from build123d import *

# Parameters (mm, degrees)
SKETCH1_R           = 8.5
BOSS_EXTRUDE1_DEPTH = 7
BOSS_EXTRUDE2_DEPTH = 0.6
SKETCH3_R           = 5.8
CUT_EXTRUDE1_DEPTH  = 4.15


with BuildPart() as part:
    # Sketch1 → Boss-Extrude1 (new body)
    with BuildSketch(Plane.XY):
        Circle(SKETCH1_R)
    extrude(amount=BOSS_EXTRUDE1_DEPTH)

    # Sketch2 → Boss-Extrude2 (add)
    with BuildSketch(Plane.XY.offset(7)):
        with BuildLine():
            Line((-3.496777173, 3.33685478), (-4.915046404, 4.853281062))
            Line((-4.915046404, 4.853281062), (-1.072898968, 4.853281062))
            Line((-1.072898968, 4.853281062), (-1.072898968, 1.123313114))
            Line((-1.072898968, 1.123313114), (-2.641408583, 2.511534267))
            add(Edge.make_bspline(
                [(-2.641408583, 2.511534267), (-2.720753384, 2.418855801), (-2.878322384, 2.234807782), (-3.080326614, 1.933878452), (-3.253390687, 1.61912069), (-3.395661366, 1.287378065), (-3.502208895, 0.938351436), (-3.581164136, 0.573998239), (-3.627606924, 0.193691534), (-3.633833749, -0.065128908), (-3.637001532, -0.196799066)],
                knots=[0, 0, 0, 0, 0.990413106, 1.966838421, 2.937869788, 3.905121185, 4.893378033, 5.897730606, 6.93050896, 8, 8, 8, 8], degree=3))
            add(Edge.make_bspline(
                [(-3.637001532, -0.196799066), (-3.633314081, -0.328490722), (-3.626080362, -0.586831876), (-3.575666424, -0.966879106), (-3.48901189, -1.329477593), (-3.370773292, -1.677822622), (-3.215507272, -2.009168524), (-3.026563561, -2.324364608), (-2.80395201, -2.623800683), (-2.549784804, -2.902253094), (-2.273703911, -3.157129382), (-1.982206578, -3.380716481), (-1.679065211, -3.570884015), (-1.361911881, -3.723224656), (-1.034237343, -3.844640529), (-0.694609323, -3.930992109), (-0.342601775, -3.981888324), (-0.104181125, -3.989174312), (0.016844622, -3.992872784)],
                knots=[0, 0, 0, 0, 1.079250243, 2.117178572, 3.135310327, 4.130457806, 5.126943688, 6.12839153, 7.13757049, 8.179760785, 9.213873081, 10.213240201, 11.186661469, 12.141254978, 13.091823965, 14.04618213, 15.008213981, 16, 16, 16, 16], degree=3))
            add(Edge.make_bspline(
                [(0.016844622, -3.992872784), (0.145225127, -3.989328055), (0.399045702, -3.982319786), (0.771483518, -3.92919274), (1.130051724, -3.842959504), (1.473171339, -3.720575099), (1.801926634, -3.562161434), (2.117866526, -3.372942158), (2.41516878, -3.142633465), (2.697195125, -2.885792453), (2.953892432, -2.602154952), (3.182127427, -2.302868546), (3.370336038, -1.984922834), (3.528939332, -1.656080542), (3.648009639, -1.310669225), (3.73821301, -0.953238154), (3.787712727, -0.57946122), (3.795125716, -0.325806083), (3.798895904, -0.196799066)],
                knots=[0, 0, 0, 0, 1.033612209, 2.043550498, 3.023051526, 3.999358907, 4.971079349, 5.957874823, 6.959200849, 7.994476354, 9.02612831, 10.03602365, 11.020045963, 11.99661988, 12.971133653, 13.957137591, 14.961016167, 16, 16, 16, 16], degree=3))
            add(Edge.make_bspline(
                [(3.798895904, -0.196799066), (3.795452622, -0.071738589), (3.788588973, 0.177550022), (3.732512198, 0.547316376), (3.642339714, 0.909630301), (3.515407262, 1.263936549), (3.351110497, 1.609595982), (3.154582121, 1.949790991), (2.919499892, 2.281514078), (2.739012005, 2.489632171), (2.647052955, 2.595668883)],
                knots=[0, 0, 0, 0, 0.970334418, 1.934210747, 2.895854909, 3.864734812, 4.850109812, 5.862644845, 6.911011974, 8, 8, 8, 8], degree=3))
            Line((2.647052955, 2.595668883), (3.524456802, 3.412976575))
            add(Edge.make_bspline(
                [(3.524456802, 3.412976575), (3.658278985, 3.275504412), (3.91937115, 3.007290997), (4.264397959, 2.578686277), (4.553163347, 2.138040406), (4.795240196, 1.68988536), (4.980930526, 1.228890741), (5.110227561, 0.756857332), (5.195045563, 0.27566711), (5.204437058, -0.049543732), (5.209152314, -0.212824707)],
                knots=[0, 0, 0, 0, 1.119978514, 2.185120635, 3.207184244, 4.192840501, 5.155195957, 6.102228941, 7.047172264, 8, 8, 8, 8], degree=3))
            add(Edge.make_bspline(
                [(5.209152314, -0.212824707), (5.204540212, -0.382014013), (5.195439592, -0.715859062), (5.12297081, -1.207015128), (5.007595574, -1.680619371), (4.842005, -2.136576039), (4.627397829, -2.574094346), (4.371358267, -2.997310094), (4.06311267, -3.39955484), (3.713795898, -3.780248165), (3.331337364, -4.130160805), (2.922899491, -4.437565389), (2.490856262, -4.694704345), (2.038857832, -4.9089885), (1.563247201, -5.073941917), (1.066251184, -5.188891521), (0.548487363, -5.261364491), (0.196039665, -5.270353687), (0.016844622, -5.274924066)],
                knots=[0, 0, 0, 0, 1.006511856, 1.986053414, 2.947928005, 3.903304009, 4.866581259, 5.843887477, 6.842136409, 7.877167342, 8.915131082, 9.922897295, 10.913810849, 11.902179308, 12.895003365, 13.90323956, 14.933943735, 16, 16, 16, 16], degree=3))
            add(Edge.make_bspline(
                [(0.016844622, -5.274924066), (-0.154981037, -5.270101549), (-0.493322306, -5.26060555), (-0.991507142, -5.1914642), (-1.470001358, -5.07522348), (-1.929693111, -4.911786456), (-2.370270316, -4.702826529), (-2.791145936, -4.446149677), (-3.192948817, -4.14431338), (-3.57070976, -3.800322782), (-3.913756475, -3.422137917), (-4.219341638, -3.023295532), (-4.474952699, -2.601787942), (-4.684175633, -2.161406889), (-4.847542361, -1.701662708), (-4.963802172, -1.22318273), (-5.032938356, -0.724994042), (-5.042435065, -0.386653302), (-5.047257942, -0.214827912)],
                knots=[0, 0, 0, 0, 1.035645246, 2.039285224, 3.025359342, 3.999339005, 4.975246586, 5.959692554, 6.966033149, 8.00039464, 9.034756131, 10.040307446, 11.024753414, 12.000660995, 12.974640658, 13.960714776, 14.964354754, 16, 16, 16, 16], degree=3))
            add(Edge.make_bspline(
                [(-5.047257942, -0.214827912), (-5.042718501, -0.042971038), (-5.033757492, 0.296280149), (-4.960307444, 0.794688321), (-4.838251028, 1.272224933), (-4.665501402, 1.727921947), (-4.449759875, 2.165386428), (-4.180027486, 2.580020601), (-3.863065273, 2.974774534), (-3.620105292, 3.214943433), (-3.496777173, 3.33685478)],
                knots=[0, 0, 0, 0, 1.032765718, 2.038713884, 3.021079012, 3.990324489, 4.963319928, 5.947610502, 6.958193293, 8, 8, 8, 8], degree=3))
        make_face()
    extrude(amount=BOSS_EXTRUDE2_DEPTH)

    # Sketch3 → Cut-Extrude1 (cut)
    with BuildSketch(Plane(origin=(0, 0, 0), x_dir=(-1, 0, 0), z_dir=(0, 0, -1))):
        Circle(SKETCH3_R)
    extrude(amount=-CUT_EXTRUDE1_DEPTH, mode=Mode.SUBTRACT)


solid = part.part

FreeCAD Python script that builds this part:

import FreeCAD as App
import Part
import Sketcher
from FreeCAD import Vector

doc = App.newDocument("Part")
body = doc.addObject("PartDesign::Body", "Body")

# Sketch on XY plane
sketch1 = doc.addObject("Sketcher::SketchObject", "Sketch")
body.addObject(sketch1)
sketch1.AttachmentSupport = (doc.XY_Plane, [""])
sketch1.MapMode = "FlatFace"
sketch1.addGeometry(Part.Circle(Vector(0, 0, 0), Vector(0, 0, 1), 8), False)
sketch1.addConstraint(Sketcher.Constraint("Coincident", 0, 3, -1, 1))
sketch1.addConstraint(Sketcher.Constraint("Diameter", 0, 17.0))
pad1 = doc.addObject("PartDesign::Pad", "Pad")
body.addObject(pad1)
pad1.Profile = sketch1
pad1.Length = 7

# Sketch on XY plane
sketch2 = doc.addObject("Sketcher::SketchObject", "Sketch001")
body.addObject(sketch2)
sketch2.AttachmentSupport = (doc.XY_Plane, [""])
sketch2.MapMode = "FlatFace"
sketch2.AttachmentOffset = App.Placement(Vector(0, 0, 7), App.Rotation())
sketch2.addGeometry(Part.LineSegment(Vector(-4.915046, 4.853281, 0), Vector(-3.496777, 3.336855, 0)), False)
sketch2.addGeometry(Part.BSplineCurve([Vector(-5.047258, -0.214828, 0), Vector(-5.042719, -0.042971, 0), Vector(-5.033757, 0.29628, 0), Vector(-4.960307, 0.794688, 0), Vector(-4.838251, 1.272225, 0), Vector(-4.665501, 1.727922, 0), Vector(-4.44976, 2.165386, 0), Vector(-4.180027, 2.580021, 0), Vector(-3.863065, 2.974775, 0), Vector(-3.620105, 3.214943, 0), Vector(-3.496777, 3.336855, 0)], [4, 1, 1, 1, 1, 1, 1, 1, 4], [0, 1.032765718, 2.038713884, 3.021079012, 3.990324489, 4.963319928, 5.947610502, 6.958193293, 8], False, 3, [1, 1, 1, 1, 1, 1, 1, 1, 1, 1, 1], False), False)
sketch2.addGeometry(Part.BSplineCurve([Vector(0.016845, -5.274924, 0), Vector(-0.154981, -5.270102, 0), Vector(-0.493322, -5.260606, 0), Vector(-0.991507, -5.191464, 0), Vector(-1.470001, -5.075223, 0), Vector(-1.929693, -4.911786, 0), Vector(-2.37027, -4.702827, 0), Vector(-2.791146, -4.44615, 0), Vector(-3.192949, -4.144313, 0), Vector(-3.57071, -3.800323, 0), Vector(-3.913756, -3.422138, 0), Vector(-4.219342, -3.023296, 0), Vector(-4.474953, -2.601788, 0), Vector(-4.684176, -2.161407, 0), Vector(-4.847542, -1.701663, 0), Vector(-4.963802, -1.223183, 0), Vector(-5.032938, -0.724994, 0), Vector(-5.042435, -0.386653, 0), Vector(-5.047258, -0.214828, 0)], [4, 1, 1, 1, 1, 1, 1, 1, 1, 1, 1, 1, 1, 1, 1, 1, 4], [0, 1.035645246, 2.039285224, 3.025359342, 3.999339005, 4.975246586, 5.959692554, 6.966033149, 8.00039464, 9.034756131, 10.040307446, 11.024753414, 12.000660995, 12.974640658, 13.960714776, 14.964354754, 16], False, 3, [1, 1, 1, 1, 1, 1, 1, 1, 1, 1, 1, 1, 1, 1, 1, 1, 1, 1, 1], False), False)
sketch2.addGeometry(Part.BSplineCurve([Vector(5.209152, -0.212825, 0), Vector(5.20454, -0.382014, 0), Vector(5.19544, -0.715859, 0), Vector(5.122971, -1.207015, 0), Vector(5.007596, -1.680619, 0), Vector(4.842005, -2.136576, 0), Vector(4.627398, -2.574094, 0), Vector(4.371358, -2.99731, 0), Vector(4.063113, -3.399555, 0), Vector(3.713796, -3.780248, 0), Vector(3.331337, -4.130161, 0), Vector(2.922899, -4.437565, 0), Vector(2.490856, -4.694704, 0), Vector(2.038858, -4.908989, 0), Vector(1.563247, -5.073942, 0), Vector(1.066251, -5.188892, 0), Vector(0.548487, -5.261364, 0), Vector(0.19604, -5.270354, 0), Vector(0.016845, -5.274924, 0)], [4, 1, 1, 1, 1, 1, 1, 1, 1, 1, 1, 1, 1, 1, 1, 1, 4], [0, 1.006511856, 1.986053414, 2.947928005, 3.903304009, 4.866581259, 5.843887477, 6.842136409, 7.877167342, 8.915131082, 9.922897295, 10.913810849, 11.902179308, 12.895003365, 13.90323956, 14.933943735, 16], False, 3, [1, 1, 1, 1, 1, 1, 1, 1, 1, 1, 1, 1, 1, 1, 1, 1, 1, 1, 1], False), False)
sketch2.addGeometry(Part.BSplineCurve([Vector(3.524457, 3.412977, 0), Vector(3.658279, 3.275504, 0), Vector(3.919371, 3.007291, 0), Vector(4.264398, 2.578686, 0), Vector(4.553163, 2.13804, 0), Vector(4.79524, 1.689885, 0), Vector(4.980931, 1.228891, 0), Vector(5.110228, 0.756857, 0), Vector(5.195046, 0.275667, 0), Vector(5.204437, -0.049544, 0), Vector(5.209152, -0.212825, 0)], [4, 1, 1, 1, 1, 1, 1, 1, 4], [0, 1.119978514, 2.185120635, 3.207184244, 4.192840501, 5.155195957, 6.102228941, 7.047172264, 8], False, 3, [1, 1, 1, 1, 1, 1, 1, 1, 1, 1, 1], False), False)
sketch2.addGeometry(Part.LineSegment(Vector(3.524457, 3.412977, 0), Vector(2.647053, 2.595669, 0)), False)
sketch2.addGeometry(Part.BSplineCurve([Vector(3.798896, -0.196799, 0), Vector(3.795453, -0.071739, 0), Vector(3.788589, 0.17755, 0), Vector(3.732512, 0.547316, 0), Vector(3.64234, 0.90963, 0), Vector(3.515407, 1.263937, 0), Vector(3.35111, 1.609596, 0), Vector(3.154582, 1.949791, 0), Vector(2.9195, 2.281514, 0), Vector(2.739012, 2.489632, 0), Vector(2.647053, 2.595669, 0)], [4, 1, 1, 1, 1, 1, 1, 1, 4], [0, 0.970334418, 1.934210747, 2.895854909, 3.864734812, 4.850109812, 5.862644845, 6.911011974, 8], False, 3, [1, 1, 1, 1, 1, 1, 1, 1, 1, 1, 1], False), False)
sketch2.addGeometry(Part.BSplineCurve([Vector(0.016845, -3.992873, 0), Vector(0.145225, -3.989328, 0), Vector(0.399046, -3.98232, 0), Vector(0.771484, -3.929193, 0), Vector(1.130052, -3.84296, 0), Vector(1.473171, -3.720575, 0), Vector(1.801927, -3.562161, 0), Vector(2.117867, -3.372942, 0), Vector(2.415169, -3.142633, 0), Vector(2.697195, -2.885792, 0), Vector(2.953892, -2.602155, 0), Vector(3.182127, -2.302869, 0), Vector(3.370336, -1.984923, 0), Vector(3.528939, -1.656081, 0), Vector(3.64801, -1.310669, 0), Vector(3.738213, -0.953238, 0), Vector(3.787713, -0.579461, 0), Vector(3.795126, -0.325806, 0), Vector(3.798896, -0.196799, 0)], [4, 1, 1, 1, 1, 1, 1, 1, 1, 1, 1, 1, 1, 1, 1, 1, 4], [0, 1.033612209, 2.043550498, 3.023051526, 3.999358907, 4.971079349, 5.957874823, 6.959200849, 7.994476354, 9.02612831, 10.03602365, 11.020045963, 11.99661988, 12.971133653, 13.957137591, 14.961016167, 16], False, 3, [1, 1, 1, 1, 1, 1, 1, 1, 1, 1, 1, 1, 1, 1, 1, 1, 1, 1, 1], False), False)
sketch2.addGeometry(Part.BSplineCurve([Vector(-3.637002, -0.196799, 0), Vector(-3.633314, -0.328491, 0), Vector(-3.62608, -0.586832, 0), Vector(-3.575666, -0.966879, 0), Vector(-3.489012, -1.329478, 0), Vector(-3.370773, -1.677823, 0), Vector(-3.215507, -2.009169, 0), Vector(-3.026564, -2.324365, 0), Vector(-2.803952, -2.623801, 0), Vector(-2.549785, -2.902253, 0), Vector(-2.273704, -3.157129, 0), Vector(-1.982207, -3.380716, 0), Vector(-1.679065, -3.570884, 0), Vector(-1.361912, -3.723225, 0), Vector(-1.034237, -3.844641, 0), Vector(-0.694609, -3.930992, 0), Vector(-0.342602, -3.981888, 0), Vector(-0.104181, -3.989174, 0), Vector(0.016845, -3.992873, 0)], [4, 1, 1, 1, 1, 1, 1, 1, 1, 1, 1, 1, 1, 1, 1, 1, 4], [0, 1.079250243, 2.117178572, 3.135310327, 4.130457806, 5.126943688, 6.12839153, 7.13757049, 8.179760785, 9.213873081, 10.213240201, 11.186661469, 12.141254978, 13.091823965, 14.04618213, 15.008213981, 16], False, 3, [1, 1, 1, 1, 1, 1, 1, 1, 1, 1, 1, 1, 1, 1, 1, 1, 1, 1, 1], False), False)
sketch2.addGeometry(Part.BSplineCurve([Vector(-2.641409, 2.511534, 0), Vector(-2.720753, 2.418856, 0), Vector(-2.878322, 2.234808, 0), Vector(-3.080327, 1.933878, 0), Vector(-3.253391, 1.619121, 0), Vector(-3.395661, 1.287378, 0), Vector(-3.502209, 0.938351, 0), Vector(-3.581164, 0.573998, 0), Vector(-3.627607, 0.193692, 0), Vector(-3.633834, -0.065129, 0), Vector(-3.637002, -0.196799, 0)], [4, 1, 1, 1, 1, 1, 1, 1, 4], [0, 0.990413106, 1.966838421, 2.937869788, 3.905121185, 4.893378033, 5.897730606, 6.93050896, 8], False, 3, [1, 1, 1, 1, 1, 1, 1, 1, 1, 1, 1], False), False)
sketch2.addGeometry(Part.LineSegment(Vector(-2.641409, 2.511534, 0), Vector(-1.072899, 1.123313, 0)), False)
sketch2.addGeometry(Part.LineSegment(Vector(-1.072899, 1.123313, 0), Vector(-1.072899, 4.853281, 0)), False)
sketch2.addGeometry(Part.LineSegment(Vector(-1.072899, 4.853281, 0), Vector(-4.915046, 4.853281, 0)), False)
sketch2.addConstraint(Sketcher.Constraint("Block", 1))
sketch2.addConstraint(Sketcher.Constraint("Block", 2))
sketch2.addConstraint(Sketcher.Constraint("Block", 3))
sketch2.addConstraint(Sketcher.Constraint("Block", 4))
sketch2.addConstraint(Sketcher.Constraint("Block", 6))
sketch2.addConstraint(Sketcher.Constraint("Block", 7))
sketch2.addConstraint(Sketcher.Constraint("Block", 8))
sketch2.addConstraint(Sketcher.Constraint("Block", 9))
sketch2.addConstraint(Sketcher.Constraint("Coincident", 0, 2, 1, 2))
sketch2.addConstraint(Sketcher.Constraint("Coincident", 4, 1, 5, 1))
sketch2.addConstraint(Sketcher.Constraint("Coincident", 5, 2, 6, 2))
sketch2.addConstraint(Sketcher.Constraint("Coincident", 9, 1, 10, 1))
sketch2.addConstraint(Sketcher.Constraint("Coincident", 10, 2, 11, 1))
sketch2.addConstraint(Sketcher.Constraint("Coincident", 11, 2, 12, 1))
sketch2.addConstraint(Sketcher.Constraint("Coincident", 12, 2, 0, 1))
sketch2.addConstraint(Sketcher.Constraint("Vertical", 11))
sketch2.addConstraint(Sketcher.Constraint("Horizontal", 12))
sketch2.addConstraint(Sketcher.Constraint("DistanceX", 10, 2, -1, 1, 1.072899))
sketch2.addConstraint(Sketcher.Constraint("DistanceX", 12, 2, 5, 2, 7.562099))
sketch2.addConstraint(Sketcher.Constraint("DistanceY", 11, 1, 11, 2, 3.729968))
sketch2.addConstraint(Sketcher.Constraint("DistanceY", -1, 1, 11, 2, 4.853281))
pad2 = doc.addObject("PartDesign::Pad", "Pad001")
body.addObject(pad2)
pad2.Profile = sketch2
pad2.Length = 0.6

# Sketch on XY plane
sketch3 = doc.addObject("Sketcher::SketchObject", "Sketch002")
body.addObject(sketch3)
sketch3.AttachmentSupport = (doc.XY_Plane, [""])
sketch3.MapMode = "FlatFace"
sketch3.addGeometry(Part.Circle(Vector(0, 0, 0), Vector(0, 0, 1), 6), False)
sketch3.addConstraint(Sketcher.Constraint("Coincident", 0, 3, -1, 1))
sketch3.addConstraint(Sketcher.Constraint("Diameter", 0, 11.6))
pocket1 = doc.addObject("PartDesign::Pocket", "Pocket")
body.addObject(pocket1)
pocket1.Profile = sketch3
pocket1.Length = 4.15
pocket1.Reversed = True

doc.recompute()
